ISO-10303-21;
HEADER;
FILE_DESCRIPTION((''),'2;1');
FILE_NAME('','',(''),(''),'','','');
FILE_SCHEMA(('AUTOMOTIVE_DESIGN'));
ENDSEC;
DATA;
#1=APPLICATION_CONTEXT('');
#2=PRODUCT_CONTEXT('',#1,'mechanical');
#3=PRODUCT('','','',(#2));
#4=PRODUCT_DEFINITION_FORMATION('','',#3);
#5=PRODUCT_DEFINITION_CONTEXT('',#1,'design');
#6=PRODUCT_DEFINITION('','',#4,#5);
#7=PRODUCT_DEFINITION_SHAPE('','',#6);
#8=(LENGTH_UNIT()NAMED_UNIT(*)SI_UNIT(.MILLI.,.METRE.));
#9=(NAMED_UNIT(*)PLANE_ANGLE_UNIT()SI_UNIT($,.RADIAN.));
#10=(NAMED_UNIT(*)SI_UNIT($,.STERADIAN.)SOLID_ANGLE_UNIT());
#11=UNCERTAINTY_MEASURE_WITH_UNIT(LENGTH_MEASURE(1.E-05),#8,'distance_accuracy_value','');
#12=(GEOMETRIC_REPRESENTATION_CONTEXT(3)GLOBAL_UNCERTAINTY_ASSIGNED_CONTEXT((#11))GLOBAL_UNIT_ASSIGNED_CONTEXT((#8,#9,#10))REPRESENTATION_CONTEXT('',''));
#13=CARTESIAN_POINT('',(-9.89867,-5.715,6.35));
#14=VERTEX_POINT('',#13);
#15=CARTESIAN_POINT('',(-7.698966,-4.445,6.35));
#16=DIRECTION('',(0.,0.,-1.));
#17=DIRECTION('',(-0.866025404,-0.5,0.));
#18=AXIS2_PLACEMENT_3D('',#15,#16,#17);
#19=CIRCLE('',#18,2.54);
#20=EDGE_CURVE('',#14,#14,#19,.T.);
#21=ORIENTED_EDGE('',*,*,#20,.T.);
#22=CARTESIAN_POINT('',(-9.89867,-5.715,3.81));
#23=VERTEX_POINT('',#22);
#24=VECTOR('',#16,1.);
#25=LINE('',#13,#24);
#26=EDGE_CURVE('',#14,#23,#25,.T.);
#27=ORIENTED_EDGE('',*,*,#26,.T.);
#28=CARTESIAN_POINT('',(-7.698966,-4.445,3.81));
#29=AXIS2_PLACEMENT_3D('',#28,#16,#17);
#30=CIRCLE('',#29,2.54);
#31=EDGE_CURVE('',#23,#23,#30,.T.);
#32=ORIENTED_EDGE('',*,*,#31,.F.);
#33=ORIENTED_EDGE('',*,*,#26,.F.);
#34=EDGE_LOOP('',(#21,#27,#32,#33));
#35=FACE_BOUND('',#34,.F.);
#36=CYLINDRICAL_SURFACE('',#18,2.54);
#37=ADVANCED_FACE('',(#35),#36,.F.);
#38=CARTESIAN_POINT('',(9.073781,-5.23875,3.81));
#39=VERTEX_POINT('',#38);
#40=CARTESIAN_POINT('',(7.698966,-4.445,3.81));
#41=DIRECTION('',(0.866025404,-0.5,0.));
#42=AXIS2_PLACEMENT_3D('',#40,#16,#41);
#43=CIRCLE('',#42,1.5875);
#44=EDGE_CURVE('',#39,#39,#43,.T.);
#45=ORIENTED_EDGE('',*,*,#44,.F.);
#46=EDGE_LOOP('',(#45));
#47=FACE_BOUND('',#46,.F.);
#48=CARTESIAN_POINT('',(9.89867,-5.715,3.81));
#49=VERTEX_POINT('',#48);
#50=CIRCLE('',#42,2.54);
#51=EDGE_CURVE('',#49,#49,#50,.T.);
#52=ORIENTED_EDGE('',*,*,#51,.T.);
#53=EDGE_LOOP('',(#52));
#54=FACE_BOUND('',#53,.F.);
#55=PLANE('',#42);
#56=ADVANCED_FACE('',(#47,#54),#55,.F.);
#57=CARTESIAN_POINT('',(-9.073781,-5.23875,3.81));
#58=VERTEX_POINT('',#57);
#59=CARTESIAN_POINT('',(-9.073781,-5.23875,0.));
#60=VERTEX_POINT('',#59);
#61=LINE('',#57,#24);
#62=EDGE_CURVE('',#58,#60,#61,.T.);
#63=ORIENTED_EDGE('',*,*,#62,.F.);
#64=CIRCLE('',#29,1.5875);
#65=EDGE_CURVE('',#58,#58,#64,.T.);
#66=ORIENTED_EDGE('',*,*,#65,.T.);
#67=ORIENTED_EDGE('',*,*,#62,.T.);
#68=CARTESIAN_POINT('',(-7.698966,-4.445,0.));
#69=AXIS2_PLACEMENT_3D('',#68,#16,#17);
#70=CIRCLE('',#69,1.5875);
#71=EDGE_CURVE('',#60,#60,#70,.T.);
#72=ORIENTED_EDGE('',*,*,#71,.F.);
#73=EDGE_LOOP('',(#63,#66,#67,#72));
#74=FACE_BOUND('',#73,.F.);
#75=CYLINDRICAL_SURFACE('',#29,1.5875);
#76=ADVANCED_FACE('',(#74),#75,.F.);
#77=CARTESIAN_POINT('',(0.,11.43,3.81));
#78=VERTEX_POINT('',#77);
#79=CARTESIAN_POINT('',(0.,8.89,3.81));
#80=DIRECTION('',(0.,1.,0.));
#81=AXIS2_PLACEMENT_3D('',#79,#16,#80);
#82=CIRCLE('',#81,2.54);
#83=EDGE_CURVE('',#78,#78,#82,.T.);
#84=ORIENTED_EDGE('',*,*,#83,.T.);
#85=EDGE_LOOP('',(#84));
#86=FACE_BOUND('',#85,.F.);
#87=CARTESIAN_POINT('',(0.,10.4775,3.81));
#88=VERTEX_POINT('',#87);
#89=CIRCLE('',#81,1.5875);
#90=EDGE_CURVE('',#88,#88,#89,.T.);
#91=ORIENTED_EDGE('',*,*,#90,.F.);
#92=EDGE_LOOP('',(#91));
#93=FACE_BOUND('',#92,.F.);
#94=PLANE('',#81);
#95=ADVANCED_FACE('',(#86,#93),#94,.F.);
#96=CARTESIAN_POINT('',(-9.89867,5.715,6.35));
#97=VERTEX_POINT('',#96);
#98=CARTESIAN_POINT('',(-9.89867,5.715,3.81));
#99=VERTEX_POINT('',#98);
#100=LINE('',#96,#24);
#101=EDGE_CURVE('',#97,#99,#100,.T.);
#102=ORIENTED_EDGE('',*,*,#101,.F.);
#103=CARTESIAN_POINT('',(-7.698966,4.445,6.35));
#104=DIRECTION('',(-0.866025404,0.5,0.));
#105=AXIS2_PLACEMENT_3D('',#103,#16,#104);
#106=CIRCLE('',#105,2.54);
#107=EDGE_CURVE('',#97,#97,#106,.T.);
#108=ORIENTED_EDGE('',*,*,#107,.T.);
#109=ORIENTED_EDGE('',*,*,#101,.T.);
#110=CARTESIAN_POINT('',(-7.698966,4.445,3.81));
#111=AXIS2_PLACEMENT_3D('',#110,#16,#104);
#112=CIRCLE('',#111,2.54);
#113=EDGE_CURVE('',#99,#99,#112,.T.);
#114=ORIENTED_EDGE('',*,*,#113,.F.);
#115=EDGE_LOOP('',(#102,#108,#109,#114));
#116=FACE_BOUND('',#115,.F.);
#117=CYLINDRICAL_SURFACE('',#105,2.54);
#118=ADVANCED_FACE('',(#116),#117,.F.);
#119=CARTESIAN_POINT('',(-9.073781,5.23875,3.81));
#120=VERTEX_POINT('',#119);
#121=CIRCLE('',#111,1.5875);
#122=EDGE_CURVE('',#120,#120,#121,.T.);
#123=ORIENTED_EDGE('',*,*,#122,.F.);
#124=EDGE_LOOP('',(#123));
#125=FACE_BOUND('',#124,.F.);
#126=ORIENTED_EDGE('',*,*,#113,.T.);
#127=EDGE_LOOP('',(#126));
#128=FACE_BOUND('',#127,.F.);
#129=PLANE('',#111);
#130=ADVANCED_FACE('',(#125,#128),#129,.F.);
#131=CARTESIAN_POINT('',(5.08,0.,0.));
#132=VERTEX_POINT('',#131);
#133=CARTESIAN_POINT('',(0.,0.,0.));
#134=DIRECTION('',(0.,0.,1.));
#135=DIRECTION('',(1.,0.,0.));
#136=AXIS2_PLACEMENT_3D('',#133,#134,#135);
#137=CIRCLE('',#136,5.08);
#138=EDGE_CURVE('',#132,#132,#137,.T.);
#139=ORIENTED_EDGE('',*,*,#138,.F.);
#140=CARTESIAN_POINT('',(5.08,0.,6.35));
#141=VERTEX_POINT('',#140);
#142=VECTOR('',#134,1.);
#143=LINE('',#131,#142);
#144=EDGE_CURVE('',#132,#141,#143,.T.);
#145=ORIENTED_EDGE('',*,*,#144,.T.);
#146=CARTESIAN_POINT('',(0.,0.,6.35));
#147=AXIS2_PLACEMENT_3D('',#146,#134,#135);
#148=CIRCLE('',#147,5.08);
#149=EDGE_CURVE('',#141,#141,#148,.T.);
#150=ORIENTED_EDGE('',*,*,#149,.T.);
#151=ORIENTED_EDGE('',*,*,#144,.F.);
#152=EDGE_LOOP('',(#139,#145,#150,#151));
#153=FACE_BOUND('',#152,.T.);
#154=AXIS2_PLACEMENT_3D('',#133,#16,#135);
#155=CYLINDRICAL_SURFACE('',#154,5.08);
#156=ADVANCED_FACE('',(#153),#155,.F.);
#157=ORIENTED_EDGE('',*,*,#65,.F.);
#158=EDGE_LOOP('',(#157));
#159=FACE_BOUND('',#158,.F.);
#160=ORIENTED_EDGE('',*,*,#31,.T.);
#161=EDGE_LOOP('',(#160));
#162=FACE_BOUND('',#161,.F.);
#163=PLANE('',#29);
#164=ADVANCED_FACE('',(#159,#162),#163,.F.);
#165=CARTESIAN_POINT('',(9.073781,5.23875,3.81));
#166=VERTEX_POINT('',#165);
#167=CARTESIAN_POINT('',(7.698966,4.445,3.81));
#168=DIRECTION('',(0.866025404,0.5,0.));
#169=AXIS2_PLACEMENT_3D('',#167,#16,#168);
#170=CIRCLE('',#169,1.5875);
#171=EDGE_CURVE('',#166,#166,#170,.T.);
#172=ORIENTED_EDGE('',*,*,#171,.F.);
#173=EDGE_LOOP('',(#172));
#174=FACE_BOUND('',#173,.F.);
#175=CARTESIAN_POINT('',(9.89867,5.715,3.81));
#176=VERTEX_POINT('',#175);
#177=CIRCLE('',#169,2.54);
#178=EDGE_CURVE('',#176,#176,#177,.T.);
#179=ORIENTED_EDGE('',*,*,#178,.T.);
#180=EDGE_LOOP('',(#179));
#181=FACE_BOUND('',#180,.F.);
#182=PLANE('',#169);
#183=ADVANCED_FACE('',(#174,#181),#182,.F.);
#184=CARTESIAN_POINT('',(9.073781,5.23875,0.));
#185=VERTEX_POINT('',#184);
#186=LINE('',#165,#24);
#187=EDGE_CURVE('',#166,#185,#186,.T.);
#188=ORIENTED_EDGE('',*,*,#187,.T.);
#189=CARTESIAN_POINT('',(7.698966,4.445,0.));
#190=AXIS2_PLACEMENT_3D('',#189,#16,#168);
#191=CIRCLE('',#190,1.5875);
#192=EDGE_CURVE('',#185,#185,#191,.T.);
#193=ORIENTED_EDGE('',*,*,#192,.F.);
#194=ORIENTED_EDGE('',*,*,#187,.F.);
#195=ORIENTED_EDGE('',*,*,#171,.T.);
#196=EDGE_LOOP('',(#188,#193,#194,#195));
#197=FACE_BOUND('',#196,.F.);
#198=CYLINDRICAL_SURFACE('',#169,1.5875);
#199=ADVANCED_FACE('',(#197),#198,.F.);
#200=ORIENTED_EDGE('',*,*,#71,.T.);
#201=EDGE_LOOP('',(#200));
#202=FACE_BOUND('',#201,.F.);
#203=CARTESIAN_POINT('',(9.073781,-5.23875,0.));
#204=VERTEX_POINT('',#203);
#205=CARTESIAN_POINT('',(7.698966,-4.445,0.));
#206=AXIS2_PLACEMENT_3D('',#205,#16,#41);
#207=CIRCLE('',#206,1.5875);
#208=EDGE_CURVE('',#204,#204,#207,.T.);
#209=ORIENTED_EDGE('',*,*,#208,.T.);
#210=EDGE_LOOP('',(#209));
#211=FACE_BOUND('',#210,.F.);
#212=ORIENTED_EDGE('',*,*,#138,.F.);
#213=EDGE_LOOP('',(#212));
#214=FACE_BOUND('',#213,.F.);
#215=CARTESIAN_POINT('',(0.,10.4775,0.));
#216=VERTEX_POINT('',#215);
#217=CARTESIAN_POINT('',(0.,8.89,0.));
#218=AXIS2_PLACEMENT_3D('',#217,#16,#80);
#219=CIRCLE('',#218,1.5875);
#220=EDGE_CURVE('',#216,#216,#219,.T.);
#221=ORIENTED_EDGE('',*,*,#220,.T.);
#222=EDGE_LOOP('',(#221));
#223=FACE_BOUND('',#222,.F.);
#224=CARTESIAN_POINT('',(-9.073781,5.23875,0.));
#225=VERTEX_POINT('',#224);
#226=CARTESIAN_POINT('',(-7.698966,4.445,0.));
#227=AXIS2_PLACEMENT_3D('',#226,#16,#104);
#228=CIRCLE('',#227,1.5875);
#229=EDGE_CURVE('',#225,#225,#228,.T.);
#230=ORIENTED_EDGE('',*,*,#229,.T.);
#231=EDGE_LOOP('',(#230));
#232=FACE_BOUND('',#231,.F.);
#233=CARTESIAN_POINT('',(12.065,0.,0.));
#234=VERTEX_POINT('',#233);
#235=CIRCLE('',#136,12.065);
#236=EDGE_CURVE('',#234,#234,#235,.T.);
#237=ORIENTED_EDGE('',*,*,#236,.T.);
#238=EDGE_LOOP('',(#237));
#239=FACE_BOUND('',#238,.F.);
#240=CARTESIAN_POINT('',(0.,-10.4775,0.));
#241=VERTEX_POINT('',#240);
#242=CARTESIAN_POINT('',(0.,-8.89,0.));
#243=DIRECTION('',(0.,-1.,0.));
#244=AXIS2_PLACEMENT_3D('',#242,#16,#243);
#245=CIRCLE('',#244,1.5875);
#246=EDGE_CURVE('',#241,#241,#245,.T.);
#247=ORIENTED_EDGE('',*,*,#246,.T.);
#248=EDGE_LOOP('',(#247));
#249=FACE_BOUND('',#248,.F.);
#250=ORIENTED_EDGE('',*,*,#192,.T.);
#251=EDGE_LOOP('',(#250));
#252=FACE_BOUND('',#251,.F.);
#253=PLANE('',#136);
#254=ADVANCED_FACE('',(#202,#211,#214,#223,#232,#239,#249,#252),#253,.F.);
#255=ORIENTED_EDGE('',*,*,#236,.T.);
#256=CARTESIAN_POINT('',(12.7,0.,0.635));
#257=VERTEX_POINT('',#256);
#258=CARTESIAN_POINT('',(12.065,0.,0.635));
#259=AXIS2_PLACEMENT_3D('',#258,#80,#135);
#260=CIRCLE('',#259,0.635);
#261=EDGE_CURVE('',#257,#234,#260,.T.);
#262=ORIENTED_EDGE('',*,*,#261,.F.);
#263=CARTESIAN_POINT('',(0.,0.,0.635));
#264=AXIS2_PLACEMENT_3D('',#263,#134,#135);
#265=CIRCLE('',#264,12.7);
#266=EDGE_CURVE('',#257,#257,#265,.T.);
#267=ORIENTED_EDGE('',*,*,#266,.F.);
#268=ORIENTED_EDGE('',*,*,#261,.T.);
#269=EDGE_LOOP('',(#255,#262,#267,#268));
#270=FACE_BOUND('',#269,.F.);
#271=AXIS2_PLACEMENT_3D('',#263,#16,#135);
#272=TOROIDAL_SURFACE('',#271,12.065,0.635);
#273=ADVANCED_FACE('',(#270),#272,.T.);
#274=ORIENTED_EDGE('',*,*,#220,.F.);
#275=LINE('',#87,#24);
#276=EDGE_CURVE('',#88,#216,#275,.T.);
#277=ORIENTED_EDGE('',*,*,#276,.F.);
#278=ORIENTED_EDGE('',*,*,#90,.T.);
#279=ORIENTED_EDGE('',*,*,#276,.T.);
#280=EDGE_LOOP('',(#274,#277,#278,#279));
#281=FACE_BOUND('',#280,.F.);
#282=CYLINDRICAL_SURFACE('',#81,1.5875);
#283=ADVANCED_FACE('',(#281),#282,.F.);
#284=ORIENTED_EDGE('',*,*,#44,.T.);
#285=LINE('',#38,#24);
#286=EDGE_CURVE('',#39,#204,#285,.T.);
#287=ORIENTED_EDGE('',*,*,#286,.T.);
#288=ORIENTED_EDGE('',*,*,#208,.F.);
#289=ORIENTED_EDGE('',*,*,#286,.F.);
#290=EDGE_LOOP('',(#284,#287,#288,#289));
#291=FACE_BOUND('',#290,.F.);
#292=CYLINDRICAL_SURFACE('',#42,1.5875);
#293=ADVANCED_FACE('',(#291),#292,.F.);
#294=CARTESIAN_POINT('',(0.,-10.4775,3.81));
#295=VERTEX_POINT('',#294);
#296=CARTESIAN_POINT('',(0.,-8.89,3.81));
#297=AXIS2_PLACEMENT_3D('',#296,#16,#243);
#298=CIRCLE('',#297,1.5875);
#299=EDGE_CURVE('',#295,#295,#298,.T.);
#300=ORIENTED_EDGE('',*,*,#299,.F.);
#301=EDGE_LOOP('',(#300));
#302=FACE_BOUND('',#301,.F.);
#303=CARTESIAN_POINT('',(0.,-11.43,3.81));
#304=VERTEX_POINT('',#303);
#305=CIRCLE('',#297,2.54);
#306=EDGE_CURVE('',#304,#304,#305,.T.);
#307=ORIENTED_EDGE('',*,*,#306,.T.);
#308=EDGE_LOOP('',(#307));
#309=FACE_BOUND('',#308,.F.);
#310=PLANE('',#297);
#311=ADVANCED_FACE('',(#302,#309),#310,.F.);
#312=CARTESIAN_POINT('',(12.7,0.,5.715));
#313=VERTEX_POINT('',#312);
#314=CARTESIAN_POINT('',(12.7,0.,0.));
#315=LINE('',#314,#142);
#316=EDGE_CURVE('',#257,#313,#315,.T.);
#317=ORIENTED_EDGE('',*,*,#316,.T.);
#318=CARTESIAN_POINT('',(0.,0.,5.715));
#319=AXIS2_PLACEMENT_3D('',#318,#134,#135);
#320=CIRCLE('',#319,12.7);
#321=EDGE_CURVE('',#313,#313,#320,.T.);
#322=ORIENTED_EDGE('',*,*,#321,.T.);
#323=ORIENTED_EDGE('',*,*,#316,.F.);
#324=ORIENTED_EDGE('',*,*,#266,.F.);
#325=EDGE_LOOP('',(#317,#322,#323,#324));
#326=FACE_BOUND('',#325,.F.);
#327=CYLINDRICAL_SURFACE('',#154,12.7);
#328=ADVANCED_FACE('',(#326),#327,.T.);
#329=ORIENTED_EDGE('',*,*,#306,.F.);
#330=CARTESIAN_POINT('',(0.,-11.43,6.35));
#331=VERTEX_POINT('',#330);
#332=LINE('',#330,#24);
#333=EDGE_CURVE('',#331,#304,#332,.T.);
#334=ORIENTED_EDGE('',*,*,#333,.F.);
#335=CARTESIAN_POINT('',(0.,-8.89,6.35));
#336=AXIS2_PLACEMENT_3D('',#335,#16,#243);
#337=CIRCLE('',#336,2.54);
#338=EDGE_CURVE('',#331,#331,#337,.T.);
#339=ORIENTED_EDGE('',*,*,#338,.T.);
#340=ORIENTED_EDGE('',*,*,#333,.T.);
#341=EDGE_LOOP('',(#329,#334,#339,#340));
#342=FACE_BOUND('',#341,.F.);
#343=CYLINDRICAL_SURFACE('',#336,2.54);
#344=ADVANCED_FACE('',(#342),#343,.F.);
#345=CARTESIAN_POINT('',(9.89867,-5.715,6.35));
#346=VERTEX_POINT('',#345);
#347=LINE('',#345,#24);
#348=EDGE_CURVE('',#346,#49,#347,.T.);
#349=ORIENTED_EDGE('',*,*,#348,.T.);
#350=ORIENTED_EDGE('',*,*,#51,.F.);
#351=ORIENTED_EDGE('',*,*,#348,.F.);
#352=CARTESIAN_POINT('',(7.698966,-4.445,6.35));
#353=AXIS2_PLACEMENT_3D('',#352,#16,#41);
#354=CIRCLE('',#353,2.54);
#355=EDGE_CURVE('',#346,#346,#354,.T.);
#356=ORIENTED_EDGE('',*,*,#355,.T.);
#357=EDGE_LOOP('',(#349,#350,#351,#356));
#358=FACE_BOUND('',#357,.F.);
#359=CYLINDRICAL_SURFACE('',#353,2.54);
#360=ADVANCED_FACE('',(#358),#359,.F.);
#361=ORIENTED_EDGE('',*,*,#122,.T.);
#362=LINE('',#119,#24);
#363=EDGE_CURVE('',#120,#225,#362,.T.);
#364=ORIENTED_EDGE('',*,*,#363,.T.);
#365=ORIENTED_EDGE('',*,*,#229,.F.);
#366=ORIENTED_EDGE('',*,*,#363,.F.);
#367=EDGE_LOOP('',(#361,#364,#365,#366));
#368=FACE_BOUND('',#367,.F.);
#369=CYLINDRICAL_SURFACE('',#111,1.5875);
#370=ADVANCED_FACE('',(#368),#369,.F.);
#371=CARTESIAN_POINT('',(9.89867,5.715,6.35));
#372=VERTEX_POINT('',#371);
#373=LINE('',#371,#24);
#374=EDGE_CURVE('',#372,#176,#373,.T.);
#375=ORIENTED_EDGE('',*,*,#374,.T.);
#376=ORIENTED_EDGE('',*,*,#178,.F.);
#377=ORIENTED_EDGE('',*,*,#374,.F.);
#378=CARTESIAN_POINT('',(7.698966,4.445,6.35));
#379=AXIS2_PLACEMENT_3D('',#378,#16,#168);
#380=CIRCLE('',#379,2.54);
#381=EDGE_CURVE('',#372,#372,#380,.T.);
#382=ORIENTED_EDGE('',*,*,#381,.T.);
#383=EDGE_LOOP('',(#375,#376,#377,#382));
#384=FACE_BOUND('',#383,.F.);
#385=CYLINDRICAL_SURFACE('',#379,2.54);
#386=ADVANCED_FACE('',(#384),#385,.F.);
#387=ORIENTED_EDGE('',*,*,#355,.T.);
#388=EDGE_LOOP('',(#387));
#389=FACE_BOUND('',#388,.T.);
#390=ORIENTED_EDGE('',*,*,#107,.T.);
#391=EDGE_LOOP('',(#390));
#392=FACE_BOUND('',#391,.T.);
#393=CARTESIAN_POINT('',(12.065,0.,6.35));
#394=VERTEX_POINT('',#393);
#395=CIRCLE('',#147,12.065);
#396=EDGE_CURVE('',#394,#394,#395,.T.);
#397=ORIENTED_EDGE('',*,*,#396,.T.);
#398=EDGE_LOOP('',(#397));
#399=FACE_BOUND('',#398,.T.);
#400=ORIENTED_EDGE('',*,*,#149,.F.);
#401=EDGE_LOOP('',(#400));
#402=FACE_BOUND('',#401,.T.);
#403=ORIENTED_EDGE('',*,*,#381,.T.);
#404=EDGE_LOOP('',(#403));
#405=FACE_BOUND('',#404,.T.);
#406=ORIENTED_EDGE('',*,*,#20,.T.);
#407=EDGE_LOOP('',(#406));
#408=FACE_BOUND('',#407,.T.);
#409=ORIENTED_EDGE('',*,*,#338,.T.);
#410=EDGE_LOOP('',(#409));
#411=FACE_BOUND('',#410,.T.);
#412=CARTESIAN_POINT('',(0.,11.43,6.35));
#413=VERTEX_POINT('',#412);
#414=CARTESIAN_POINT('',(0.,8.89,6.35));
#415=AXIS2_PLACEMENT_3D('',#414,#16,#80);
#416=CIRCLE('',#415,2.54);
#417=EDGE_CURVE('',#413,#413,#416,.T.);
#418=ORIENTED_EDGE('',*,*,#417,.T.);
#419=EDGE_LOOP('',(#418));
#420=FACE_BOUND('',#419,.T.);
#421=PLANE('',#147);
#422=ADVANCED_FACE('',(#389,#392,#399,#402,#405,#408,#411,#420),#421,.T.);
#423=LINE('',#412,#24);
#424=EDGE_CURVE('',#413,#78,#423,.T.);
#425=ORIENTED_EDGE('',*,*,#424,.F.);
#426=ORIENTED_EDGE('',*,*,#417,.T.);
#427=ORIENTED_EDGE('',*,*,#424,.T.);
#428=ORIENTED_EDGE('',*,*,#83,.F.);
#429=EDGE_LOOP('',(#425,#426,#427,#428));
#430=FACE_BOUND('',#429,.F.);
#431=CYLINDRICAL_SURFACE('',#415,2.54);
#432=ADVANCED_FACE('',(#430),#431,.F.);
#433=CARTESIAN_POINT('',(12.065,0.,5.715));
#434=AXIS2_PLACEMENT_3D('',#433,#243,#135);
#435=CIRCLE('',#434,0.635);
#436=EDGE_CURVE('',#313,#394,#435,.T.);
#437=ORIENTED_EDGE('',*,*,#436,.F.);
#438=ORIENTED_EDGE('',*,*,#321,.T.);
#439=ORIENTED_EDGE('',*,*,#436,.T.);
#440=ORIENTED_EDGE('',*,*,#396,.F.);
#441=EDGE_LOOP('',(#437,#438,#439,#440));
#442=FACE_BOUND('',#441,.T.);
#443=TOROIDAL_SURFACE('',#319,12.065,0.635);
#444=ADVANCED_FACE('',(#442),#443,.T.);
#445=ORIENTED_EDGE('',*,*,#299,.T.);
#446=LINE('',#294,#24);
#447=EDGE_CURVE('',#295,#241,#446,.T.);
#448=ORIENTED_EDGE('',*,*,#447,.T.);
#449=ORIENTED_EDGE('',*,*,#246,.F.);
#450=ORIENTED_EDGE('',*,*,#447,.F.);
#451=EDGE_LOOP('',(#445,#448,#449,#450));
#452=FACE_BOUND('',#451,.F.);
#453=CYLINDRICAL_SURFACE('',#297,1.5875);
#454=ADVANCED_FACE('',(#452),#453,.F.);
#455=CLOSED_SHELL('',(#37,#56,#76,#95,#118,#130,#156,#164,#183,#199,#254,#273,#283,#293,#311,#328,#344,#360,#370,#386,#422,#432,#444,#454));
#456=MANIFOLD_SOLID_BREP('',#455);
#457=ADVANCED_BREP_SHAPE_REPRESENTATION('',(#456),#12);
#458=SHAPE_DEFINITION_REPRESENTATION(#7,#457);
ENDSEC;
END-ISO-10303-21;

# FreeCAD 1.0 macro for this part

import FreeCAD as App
import Part
import Sketcher
from FreeCAD import Vector
Q = App.Units.Quantity


def edges_at(feature, points):
    """Names of the edges that pass closest to the given points."""
    edges = feature.Shape.Edges
    near = lambda p: min(range(len(edges)), key=lambda i: edges[i].distToShape(Part.Vertex(*p))[0])
    return sorted({f"Edge{near(p) + 1}" for p in points})

doc = App.newDocument("Part")
body = doc.addObject("PartDesign::Body", "Body")

# Sketch on XY plane
sketch1 = doc.addObject("Sketcher::SketchObject", "Sketch")
body.addObject(sketch1)
sketch1.AttachmentSupport = (doc.XY_Plane, [""])
sketch1.MapMode = "FlatFace"
sketch1.addGeometry(Part.Circle(Vector(0, 0, 0), Vector(0, 0, 1), 13), False)
sketch1.addGeometry(Part.Circle(Vector(0, 0, 0), Vector(0, 0, 1), 5), False)
sketch1.addConstraint(Sketcher.Constraint("Coincident", 0, 3, -1, 1))
sketch1.addConstraint(Sketcher.Constraint("Coincident", 1, 3, -1, 1))
sketch1.addConstraint(Sketcher.Constraint("Diameter", 0, Q("1 in")))
sketch1.addConstraint(Sketcher.Constraint("Diameter", 1, Q("0.4 in")))
pad1 = doc.addObject("PartDesign::Pad", "Pad")
body.addObject(pad1)
pad1.Profile = sketch1
pad1.Length = Q("0.25 in")

# Sketch on XY plane
sketch2 = doc.addObject("Sketcher::SketchObject", "Sketch001")
body.addObject(sketch2)
sketch2.AttachmentSupport = (doc.XY_Plane, [""])
sketch2.MapMode = "FlatFace"
sketch2.AttachmentOffset = App.Placement(Vector(0, 0, 0.25 * 25.4), App.Rotation())
sketch2.addGeometry(Part.Circle(Vector(0, -8.9, 0), Vector(0, 0, 1), 1.6), False)
sketch2.addConstraint(Sketcher.Constraint("PointOnObject", 0, 3, -2))
sketch2.addConstraint(Sketcher.Constraint("Diameter", 0, Q("0.125 in")))
sketch2.addConstraint(Sketcher.Constraint("DistanceY", 0, 3, -1, 1, Q("0.35 in")))
doc.recompute()
hole = doc.addObject("PartDesign::Hole", "Hole")
body.addObject(hole)
hole.Profile = sketch2
hole.ThreadType = "None"
hole.Diameter = Q("0.125 in")
hole.DepthType = "Dimension"
hole.Depth = Q("0.25 in")
hole.DrillPoint = "Flat"
hole.HoleCutType = "Counterbore"
hole.HoleCutDiameter = Q("0.2 in")
hole.HoleCutDepth = Q("0.1 in")
doc.recompute()

polarpattern = doc.addObject("PartDesign::PolarPattern", "PolarPattern")
body.addObject(polarpattern)
polarpattern.Originals = [hole]
polarpattern.Axis = (doc.Z_Axis, [""])
polarpattern.Angle = 360
polarpattern.Occurrences = 6
body.Tip = polarpattern
doc.recompute()

fillet = doc.addObject("PartDesign::Fillet", "Fillet")
body.addObject(fillet)
fillet.Base = (polarpattern, edges_at(polarpattern, [(-11.841, -4.593, 6.35), (-11.841, -4.593, 0)]))
fillet.Radius = Q("0.025 in")

doc.recompute()
